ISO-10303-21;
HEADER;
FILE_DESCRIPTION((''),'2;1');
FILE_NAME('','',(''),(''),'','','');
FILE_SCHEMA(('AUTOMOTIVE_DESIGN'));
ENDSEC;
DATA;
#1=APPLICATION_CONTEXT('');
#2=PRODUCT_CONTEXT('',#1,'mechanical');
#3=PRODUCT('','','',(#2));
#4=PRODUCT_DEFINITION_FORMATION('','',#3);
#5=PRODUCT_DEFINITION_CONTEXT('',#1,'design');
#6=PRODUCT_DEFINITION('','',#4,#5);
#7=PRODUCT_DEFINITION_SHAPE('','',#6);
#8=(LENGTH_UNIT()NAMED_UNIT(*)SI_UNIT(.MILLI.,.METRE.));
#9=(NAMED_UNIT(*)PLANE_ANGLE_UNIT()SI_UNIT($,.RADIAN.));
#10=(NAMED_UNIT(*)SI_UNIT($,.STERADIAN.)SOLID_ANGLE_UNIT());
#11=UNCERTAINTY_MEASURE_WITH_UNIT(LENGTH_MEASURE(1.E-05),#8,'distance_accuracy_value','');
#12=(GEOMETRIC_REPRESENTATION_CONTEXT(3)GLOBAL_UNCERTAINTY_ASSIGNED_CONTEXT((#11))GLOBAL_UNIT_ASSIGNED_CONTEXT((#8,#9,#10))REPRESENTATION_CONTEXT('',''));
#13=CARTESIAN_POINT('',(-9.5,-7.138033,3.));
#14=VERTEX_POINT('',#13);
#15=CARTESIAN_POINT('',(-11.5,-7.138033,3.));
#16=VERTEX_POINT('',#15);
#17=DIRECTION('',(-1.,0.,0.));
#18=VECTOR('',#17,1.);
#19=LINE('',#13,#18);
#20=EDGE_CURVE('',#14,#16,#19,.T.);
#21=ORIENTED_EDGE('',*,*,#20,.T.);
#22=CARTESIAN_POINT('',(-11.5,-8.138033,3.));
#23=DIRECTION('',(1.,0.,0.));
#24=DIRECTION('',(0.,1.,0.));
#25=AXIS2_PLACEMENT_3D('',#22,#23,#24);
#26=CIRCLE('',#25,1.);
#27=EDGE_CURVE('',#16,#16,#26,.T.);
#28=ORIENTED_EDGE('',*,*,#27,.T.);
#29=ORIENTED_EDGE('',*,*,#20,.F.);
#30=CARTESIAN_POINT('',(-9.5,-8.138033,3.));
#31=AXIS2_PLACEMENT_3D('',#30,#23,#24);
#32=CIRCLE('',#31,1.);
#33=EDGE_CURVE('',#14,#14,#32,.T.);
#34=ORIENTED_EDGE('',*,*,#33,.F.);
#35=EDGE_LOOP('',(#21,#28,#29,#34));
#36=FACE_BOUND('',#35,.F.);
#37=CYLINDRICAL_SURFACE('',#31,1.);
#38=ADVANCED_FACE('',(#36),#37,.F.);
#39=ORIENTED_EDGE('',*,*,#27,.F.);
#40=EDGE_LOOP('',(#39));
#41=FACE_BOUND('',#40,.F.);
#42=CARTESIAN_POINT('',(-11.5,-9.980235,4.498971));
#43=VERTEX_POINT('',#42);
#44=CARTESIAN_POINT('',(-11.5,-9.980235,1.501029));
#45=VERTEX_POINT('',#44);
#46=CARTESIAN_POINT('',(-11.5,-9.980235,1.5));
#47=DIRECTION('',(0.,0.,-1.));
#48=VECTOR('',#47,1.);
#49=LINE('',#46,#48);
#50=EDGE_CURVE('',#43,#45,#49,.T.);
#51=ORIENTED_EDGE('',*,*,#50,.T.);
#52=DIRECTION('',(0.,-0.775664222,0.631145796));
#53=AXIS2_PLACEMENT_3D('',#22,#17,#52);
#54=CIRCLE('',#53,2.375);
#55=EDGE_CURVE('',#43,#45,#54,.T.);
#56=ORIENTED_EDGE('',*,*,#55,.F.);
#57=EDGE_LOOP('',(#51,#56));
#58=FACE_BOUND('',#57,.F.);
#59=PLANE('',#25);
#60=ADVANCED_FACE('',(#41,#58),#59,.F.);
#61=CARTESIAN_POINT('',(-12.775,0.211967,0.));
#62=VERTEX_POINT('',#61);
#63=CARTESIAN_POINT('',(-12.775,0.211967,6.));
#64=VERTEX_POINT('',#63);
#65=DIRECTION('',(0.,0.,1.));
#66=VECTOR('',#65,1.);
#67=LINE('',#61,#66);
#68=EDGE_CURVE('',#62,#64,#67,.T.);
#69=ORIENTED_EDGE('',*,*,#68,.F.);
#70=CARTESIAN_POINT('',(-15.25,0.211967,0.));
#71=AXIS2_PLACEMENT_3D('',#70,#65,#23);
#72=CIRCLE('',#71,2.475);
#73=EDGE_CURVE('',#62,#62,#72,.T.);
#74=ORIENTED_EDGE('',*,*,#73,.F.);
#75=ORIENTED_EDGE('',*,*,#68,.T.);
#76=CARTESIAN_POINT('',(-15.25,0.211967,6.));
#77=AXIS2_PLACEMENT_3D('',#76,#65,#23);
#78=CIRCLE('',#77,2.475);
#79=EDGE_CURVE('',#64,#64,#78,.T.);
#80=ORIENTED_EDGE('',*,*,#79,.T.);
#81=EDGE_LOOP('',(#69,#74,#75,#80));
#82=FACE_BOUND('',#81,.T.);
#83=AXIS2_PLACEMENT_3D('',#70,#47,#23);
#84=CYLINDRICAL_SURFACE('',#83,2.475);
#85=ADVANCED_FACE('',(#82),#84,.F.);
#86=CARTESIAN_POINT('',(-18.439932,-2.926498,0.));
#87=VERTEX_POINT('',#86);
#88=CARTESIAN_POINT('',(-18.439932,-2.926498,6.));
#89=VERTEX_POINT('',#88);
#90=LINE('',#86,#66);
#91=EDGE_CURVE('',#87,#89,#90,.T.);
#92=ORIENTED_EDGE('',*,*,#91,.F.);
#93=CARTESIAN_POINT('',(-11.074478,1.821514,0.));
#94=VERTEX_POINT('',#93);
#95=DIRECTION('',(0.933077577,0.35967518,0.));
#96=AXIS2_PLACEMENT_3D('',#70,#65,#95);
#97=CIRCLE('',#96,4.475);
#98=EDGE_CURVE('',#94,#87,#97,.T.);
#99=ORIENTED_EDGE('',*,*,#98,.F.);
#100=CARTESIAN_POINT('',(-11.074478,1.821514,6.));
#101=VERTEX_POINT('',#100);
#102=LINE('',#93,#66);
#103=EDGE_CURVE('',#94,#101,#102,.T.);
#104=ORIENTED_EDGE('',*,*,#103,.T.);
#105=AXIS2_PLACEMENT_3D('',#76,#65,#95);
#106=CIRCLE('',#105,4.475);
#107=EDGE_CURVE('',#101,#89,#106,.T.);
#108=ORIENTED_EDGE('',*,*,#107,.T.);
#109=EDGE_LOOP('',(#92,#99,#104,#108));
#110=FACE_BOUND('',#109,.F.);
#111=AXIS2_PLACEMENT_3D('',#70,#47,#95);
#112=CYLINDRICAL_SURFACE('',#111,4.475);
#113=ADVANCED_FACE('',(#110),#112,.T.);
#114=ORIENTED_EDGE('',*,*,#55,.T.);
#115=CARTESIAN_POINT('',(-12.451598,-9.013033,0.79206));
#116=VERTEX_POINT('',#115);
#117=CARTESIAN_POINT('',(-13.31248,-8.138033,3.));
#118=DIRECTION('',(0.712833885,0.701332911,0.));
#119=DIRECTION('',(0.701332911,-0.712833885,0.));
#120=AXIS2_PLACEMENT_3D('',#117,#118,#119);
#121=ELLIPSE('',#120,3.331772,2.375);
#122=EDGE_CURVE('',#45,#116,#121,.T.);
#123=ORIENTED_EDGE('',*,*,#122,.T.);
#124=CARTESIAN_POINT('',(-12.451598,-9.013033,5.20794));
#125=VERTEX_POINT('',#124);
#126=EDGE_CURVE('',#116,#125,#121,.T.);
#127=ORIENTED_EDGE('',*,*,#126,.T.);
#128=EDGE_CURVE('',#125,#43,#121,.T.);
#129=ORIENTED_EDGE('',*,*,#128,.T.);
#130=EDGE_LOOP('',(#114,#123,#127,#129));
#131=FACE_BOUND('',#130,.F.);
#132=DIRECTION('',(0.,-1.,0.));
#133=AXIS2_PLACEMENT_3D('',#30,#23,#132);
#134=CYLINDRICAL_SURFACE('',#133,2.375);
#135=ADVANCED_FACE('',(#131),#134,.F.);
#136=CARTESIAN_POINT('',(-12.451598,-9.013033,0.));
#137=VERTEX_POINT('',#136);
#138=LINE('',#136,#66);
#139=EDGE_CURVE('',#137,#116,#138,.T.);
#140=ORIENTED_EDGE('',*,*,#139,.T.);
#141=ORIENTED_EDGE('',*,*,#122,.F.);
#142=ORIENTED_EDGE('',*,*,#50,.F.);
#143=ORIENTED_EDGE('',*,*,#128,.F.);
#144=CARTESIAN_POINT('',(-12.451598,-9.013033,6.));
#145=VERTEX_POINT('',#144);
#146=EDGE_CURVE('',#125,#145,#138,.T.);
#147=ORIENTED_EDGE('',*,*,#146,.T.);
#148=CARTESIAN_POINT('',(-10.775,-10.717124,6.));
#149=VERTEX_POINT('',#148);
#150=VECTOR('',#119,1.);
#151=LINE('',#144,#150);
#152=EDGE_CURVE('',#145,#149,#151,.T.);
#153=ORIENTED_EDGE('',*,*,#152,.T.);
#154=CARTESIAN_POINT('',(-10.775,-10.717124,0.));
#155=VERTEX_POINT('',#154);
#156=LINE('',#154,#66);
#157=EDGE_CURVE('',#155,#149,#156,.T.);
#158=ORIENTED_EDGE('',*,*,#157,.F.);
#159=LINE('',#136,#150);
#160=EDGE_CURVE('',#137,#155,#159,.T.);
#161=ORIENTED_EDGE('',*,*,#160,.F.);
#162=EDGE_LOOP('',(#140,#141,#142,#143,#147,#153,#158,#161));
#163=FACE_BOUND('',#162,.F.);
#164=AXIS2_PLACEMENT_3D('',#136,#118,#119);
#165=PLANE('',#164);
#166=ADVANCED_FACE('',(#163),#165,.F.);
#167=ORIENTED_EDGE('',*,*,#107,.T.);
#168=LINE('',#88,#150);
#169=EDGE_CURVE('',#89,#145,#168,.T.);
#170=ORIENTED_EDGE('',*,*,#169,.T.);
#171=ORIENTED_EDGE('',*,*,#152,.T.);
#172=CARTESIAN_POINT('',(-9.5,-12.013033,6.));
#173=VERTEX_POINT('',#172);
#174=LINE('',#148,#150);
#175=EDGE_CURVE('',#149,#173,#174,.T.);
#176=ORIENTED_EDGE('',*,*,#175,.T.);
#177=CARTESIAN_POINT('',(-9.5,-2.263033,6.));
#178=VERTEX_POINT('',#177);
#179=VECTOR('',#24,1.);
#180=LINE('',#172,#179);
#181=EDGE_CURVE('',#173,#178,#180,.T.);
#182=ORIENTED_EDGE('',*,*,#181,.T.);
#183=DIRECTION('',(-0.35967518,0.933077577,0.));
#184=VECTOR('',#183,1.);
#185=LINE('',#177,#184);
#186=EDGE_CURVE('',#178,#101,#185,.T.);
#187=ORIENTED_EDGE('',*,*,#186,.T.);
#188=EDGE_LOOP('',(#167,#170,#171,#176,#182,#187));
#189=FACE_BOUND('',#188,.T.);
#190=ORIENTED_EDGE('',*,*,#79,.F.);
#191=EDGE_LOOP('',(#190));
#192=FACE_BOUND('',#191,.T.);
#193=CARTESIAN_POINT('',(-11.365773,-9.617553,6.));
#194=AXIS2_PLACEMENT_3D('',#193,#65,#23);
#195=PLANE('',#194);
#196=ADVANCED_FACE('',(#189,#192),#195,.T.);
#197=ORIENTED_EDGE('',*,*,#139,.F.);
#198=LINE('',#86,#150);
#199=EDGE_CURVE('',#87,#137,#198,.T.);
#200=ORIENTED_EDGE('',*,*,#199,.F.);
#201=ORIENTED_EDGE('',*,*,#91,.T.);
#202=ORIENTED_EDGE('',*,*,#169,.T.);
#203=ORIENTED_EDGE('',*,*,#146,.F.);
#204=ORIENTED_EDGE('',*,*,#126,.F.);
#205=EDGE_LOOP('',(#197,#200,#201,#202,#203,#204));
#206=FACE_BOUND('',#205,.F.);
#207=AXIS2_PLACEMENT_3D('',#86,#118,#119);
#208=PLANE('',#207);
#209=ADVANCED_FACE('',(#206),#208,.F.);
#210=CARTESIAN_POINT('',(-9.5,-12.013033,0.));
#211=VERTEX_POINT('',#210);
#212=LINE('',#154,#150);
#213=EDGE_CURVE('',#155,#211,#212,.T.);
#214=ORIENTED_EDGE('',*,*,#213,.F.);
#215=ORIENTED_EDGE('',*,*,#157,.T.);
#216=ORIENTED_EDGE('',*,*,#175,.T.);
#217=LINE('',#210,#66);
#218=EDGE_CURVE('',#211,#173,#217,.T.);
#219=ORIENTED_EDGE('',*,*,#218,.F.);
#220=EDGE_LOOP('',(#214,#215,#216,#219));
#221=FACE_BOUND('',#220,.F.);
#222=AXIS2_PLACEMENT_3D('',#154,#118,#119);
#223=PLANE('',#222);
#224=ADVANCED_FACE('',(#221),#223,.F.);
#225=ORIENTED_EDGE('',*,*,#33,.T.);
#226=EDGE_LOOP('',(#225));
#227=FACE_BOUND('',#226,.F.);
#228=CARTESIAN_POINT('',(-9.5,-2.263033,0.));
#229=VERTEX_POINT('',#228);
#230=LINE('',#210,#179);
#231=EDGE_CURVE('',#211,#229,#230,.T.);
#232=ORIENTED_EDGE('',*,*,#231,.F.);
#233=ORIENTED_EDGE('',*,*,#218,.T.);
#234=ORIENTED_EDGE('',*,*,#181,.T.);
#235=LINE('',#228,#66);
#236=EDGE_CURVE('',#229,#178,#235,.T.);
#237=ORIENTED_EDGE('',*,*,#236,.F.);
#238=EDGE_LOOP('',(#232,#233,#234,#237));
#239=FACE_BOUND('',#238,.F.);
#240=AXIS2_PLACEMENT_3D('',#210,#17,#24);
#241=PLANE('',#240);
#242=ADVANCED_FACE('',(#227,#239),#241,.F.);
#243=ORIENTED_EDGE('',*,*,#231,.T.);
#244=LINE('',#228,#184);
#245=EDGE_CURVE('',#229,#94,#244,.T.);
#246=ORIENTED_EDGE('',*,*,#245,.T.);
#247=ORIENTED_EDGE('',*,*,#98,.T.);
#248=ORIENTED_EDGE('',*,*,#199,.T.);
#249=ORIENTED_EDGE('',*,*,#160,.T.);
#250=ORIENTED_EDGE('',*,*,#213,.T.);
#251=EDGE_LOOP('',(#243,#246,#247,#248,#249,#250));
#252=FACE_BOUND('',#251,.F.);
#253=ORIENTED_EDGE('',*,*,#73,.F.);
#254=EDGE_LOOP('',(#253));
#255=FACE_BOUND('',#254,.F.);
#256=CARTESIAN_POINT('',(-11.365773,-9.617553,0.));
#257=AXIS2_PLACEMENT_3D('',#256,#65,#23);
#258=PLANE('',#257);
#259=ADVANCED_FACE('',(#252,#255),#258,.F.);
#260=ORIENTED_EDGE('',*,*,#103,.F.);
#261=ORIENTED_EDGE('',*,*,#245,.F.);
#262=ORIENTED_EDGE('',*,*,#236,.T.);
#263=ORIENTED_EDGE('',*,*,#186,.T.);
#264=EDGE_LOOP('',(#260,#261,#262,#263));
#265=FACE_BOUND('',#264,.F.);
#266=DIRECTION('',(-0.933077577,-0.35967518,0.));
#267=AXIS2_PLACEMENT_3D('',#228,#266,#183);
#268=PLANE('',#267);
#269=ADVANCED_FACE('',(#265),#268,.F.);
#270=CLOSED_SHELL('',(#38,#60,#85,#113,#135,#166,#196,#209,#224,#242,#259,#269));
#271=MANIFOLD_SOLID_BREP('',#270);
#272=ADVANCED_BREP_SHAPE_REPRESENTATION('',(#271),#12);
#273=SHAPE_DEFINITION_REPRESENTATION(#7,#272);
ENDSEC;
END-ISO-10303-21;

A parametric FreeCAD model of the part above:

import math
import FreeCAD as App
import Part
import Sketcher

doc = App.newDocument("Part")
body = doc.addObject("PartDesign::Body", "Body")

sketch1 = body.newObject("Sketcher::SketchObject", "Sketch")
sketch1.AttachmentSupport = (doc.getObject("XY_Plane"), [""])
sketch1.MapMode = "FlatFace"
sketch1.addGeometry([
    Part.LineSegment(App.Vector(-12.5, -9, 0), App.Vector(-10.8, -10.7, 0)),
    Part.LineSegment(App.Vector(-10.8, -10.7, 0), App.Vector(-9.5, -12, 0)),
    Part.LineSegment(App.Vector(-9.5, -12, 0), App.Vector(-9.5, -2.3, 0)),
    Part.LineSegment(App.Vector(-9.5, -2.3, 0), App.Vector(-11.1, 1.8, 0)),
    Part.ArcOfCircle(Part.Circle(App.Vector(-15.2, 0.2, 0), App.Vector(0, 0, 1), 4.5), math.radians(21), math.radians(225)),
    Part.LineSegment(App.Vector(-18.4, -2.9, 0), App.Vector(-12.5, -9, 0)),
    Part.Circle(App.Vector(-15.2, 0.2, 0), App.Vector(0, 0, 1), 2.5),
], False)
sketch1.addConstraint([
    Sketcher.Constraint("Coincident", 0, 2, 1, 1),
    Sketcher.Constraint("Coincident", 1, 2, 2, 1),
    Sketcher.Constraint("Coincident", 2, 2, 3, 1),
    Sketcher.Constraint("Tangent", 3, 2, 4, 1),
    Sketcher.Constraint("Tangent", 4, 2, 5, 1),
    Sketcher.Constraint("Coincident", 5, 2, 0, 1),
    Sketcher.Constraint("Vertical", 2),
    Sketcher.Constraint("Coincident", 6, 3, 4, 3),
    Sketcher.Constraint("Parallel", 0, 1),
    Sketcher.Constraint("Parallel", 1, 5),
    Sketcher.Constraint("Diameter", 6, 4.95),
    Sketcher.Constraint("Radius", 4, 4.475),
    Sketcher.Constraint("DistanceY", 1, 2, 5, 2, 3.0),
    Sketcher.Constraint("DistanceY", 2, 1, 2, 2, 9.75),
    Sketcher.Constraint("DistanceX", 1, 2, -1, 1, 9.5),
    Sketcher.Constraint("DistanceX", 4, 3, -1, 1, 15.25),
    Sketcher.Constraint("DistanceX", 0, 2, -1, 1, 10.775),
    Sketcher.Constraint("DistanceY", 1, 2, 4, 3, 12.225),
    Sketcher.Constraint("DistanceY", -1, 1, 4, 3, 0.211967),
])
pad1 = body.newObject("PartDesign::Pad", "Pad")
pad1.Profile = sketch1
pad1.Length = 6

sketch2 = body.newObject("Sketcher::SketchObject", "Sketch001")
sketch2.AttachmentSupport = (doc.getObject("YZ_Plane"), [""])
sketch2.MapMode = "FlatFace"
sketch2.AttachmentOffset = App.Placement(App.Vector(0, 0, -9.5), App.Rotation())
sketch2.addGeometry(Part.Circle(App.Vector(-8.1, 3, 0), App.Vector(0, 0, 1), 2.4), False)
sketch2.addConstraint([
    Sketcher.Constraint("Diameter", 0, 4.75),
    Sketcher.Constraint("DistanceY", -1, 1, 0, 3, 3.0),
    Sketcher.Constraint("DistanceX", 0, 3, -1, 1, 8.138033),
])
pocket1 = body.newObject("PartDesign::Pocket", "Pocket")
pocket1.Profile = sketch2
pocket1.Type = "ThroughAll"

sketch3 = body.newObject("Sketcher::SketchObject", "Sketch002")
sketch3.AttachmentSupport = (doc.getObject("YZ_Plane"), [""])
sketch3.MapMode = "FlatFace"
sketch3.AttachmentOffset = App.Placement(App.Vector(0, 0, -9.5), App.Rotation())
sketch3.addGeometry(Part.Circle(App.Vector(-8.1, 3, 0), App.Vector(0, 0, 1), 2.4), False)
sketch3.addConstraint([
    Sketcher.Constraint("Diameter", 0, 4.75),
    Sketcher.Constraint("DistanceY", -1, 1, 0, 3, 3.0),
    Sketcher.Constraint("DistanceX", 0, 3, -1, 1, 8.138033),
])
pad2 = body.newObject("PartDesign::Pad", "Pad001")
pad2.Profile = sketch3
pad2.Length = 2
pad2.Reversed = True

sketch4 = body.newObject("Sketcher::SketchObject", "Sketch003")
sketch4.AttachmentSupport = (doc.getObject("YZ_Plane"), [""])
sketch4.MapMode = "FlatFace"
sketch4.AttachmentOffset = App.Placement(App.Vector(0, 0, -9.5), App.Rotation())
sketch4.addGeometry(Part.Circle(App.Vector(-8.1, 3, 0), App.Vector(0, 0, 1), 1), False)
sketch4.addConstraint([
    Sketcher.Constraint("Diameter", 0, 2.0),
    Sketcher.Constraint("DistanceY", -1, 1, 0, 3, 3.0),
    Sketcher.Constraint("DistanceX", 0, 3, -1, 1, 8.138033),
])
pocket2 = body.newObject("PartDesign::Pocket", "Pocket001")
pocket2.Profile = sketch4
pocket2.Type = "ThroughAll"

sketch5 = body.newObject("Sketcher::SketchObject", "Sketch004")
sketch5.AttachmentSupport = (doc.getObject("XY_Plane"), [""])
sketch5.MapMode = "FlatFace"
sketch5.addGeometry([
    Part.LineSegment(App.Vector(-12.5, -9, 0), App.Vector(-18.4, -2.9, 0)),
    Part.LineSegment(App.Vector(-18.4, -2.9, 0), App.Vector(-21.1, -5.5, 0)),
    Part.LineSegment(App.Vector(-21.1, -5.5, 0), App.Vector(-12.1, -14.6, 0)),
    Part.LineSegment(App.Vector(-12.1, -14.6, 0), App.Vector(-9.5, -12, 0)),
    Part.LineSegment(App.Vector(-9.5, -12, 0), App.Vector(-10.8, -10.7, 0)),
    Part.LineSegment(App.Vector(-10.8, -10.7, 0), App.Vector(-12.5, -9, 0)),
], False)
sketch5.addConstraint([
    Sketcher.Constraint("Coincident", 0, 2, 1, 1),
    Sketcher.Constraint("Coincident", 1, 2, 2, 1),
    Sketcher.Constraint("Coincident", 2, 2, 3, 1),
    Sketcher.Constraint("Coincident", 3, 2, 4, 1),
    Sketcher.Constraint("Coincident", 4, 2, 5, 1),
    Sketcher.Constraint("Coincident", 5, 2, 0, 1),
    Sketcher.Constraint("Perpendicular", 0, 1),
    Sketcher.Constraint("Perpendicular", 1, 2),
    Sketcher.Constraint("Perpendicular", 2, 3),
    Sketcher.Constraint("Perpendicular", 3, 4),
    Sketcher.Constraint("Parallel", 4, 5),
    Sketcher.Constraint("DistanceY", 3, 2, 5, 2, 3.0),
    Sketcher.Constraint("DistanceX", 3, 2, -1, 1, 9.5),
    Sketcher.Constraint("DistanceX", 4, 2, -1, 1, 10.775),
    Sketcher.Constraint("Distance", 2, 12.747058),
    Sketcher.Constraint("DistanceX", 0, 2, -1, 1, 18.439932),
    Sketcher.Constraint("DistanceX", 1, 2, -1, 1, 21.082779),
    Sketcher.Constraint("DistanceY", 2, 2, -1, 1, 14.61324),
])
pocket3 = body.newObject("PartDesign::Pocket", "Pocket002")
pocket3.Profile = sketch5
pocket3.Length = 25
pocket3.Reversed = True

doc.recompute()
